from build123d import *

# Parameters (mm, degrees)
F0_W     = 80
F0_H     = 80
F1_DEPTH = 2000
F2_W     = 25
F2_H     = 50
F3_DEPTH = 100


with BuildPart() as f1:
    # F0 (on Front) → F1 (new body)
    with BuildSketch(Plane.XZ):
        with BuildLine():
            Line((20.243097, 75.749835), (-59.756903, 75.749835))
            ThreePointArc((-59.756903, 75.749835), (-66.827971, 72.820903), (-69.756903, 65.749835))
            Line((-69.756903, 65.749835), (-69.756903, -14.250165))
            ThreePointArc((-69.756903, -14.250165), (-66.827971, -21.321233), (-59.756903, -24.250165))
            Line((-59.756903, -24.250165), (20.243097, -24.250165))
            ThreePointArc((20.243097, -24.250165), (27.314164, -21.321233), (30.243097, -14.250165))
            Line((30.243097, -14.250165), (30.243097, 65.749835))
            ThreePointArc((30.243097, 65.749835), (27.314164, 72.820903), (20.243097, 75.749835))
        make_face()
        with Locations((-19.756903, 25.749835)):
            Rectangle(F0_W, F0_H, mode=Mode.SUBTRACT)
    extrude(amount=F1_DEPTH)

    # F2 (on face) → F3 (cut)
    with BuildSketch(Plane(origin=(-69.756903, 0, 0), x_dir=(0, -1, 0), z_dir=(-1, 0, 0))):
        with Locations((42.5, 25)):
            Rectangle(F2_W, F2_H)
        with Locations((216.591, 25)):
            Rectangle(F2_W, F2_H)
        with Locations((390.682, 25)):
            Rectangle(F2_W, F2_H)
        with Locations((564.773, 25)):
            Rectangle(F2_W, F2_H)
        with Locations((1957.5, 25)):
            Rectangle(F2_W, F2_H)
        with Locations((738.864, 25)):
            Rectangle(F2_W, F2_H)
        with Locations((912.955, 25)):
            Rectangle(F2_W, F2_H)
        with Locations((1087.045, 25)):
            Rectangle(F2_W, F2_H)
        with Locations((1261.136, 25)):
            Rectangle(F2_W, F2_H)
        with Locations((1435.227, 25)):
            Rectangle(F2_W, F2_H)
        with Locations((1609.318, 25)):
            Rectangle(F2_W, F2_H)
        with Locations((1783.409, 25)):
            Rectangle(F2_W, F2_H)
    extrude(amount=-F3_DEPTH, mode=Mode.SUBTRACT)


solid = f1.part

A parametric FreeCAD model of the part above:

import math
import FreeCAD as App
import Part
import Sketcher

V = App.Vector
Q = App.Units.Quantity

doc = App.newDocument("Part")
body = doc.addObject("PartDesign::Body", "Body")

sketch1 = body.newObject("Sketcher::SketchObject", "Sketch")
sketch1.AttachmentSupport = (doc.getObject("XZ_Plane"), [""])
sketch1.MapMode = "FlatFace"
sketch1.addGeometry(Part.LineSegment(V(20, 76, 0), V(-60, 76, 0)), False)
sketch1.addGeometry(Part.ArcOfCircle(Part.Circle(V(-60, 66, 0), V(0, 0, 1), 10), math.radians(90), math.radians(180)), False)
sketch1.addGeometry(Part.LineSegment(V(-70, 66, 0), V(-70, -14, 0)), False)
sketch1.addGeometry(Part.ArcOfCircle(Part.Circle(V(-60, -14, 0), V(0, 0, 1), 10), math.radians(180), math.radians(270)), False)
sketch1.addGeometry(Part.LineSegment(V(-60, -24, 0), V(20, -24, 0)), False)
sketch1.addGeometry(Part.ArcOfCircle(Part.Circle(V(20, -14, 0), V(0, 0, 1), 10), math.radians(-90), math.radians(0)), False)
sketch1.addGeometry(Part.LineSegment(V(30, -14, 0), V(30, 66, 0)), False)
sketch1.addGeometry(Part.ArcOfCircle(Part.Circle(V(20, 66, 0), V(0, 0, 1), 10), math.radians(0), math.radians(90)), False)
sketch1.addGeometry(Part.LineSegment(V(20, -14, 0), V(-60, -14, 0)), False)
sketch1.addGeometry(Part.LineSegment(V(-60, -14, 0), V(-60, 66, 0)), False)
sketch1.addGeometry(Part.LineSegment(V(-60, 66, 0), V(20, 66, 0)), False)
sketch1.addGeometry(Part.LineSegment(V(20, 66, 0), V(20, -14, 0)), False)
sketch1.addConstraint(Sketcher.Constraint("Tangent", 0, 2, 1, 1))
sketch1.addConstraint(Sketcher.Constraint("Tangent", 1, 2, 2, 1))
sketch1.addConstraint(Sketcher.Constraint("Tangent", 2, 2, 3, 1))
sketch1.addConstraint(Sketcher.Constraint("Tangent", 3, 2, 4, 1))
sketch1.addConstraint(Sketcher.Constraint("Tangent", 4, 2, 5, 1))
sketch1.addConstraint(Sketcher.Constraint("Tangent", 5, 2, 6, 1))
sketch1.addConstraint(Sketcher.Constraint("Tangent", 6, 2, 7, 1))
sketch1.addConstraint(Sketcher.Constraint("Tangent", 7, 2, 0, 1))
sketch1.addConstraint(Sketcher.Constraint("Coincident", 8, 2, 9, 1))
sketch1.addConstraint(Sketcher.Constraint("Coincident", 9, 2, 10, 1))
sketch1.addConstraint(Sketcher.Constraint("Coincident", 10, 2, 11, 1))
sketch1.addConstraint(Sketcher.Constraint("Coincident", 11, 2, 8, 1))
sketch1.addConstraint(Sketcher.Constraint("Horizontal", 0))
sketch1.addConstraint(Sketcher.Constraint("Vertical", 2))
sketch1.addConstraint(Sketcher.Constraint("Horizontal", 4))
sketch1.addConstraint(Sketcher.Constraint("Vertical", 6))
sketch1.addConstraint(Sketcher.Constraint("Horizontal", 8))
sketch1.addConstraint(Sketcher.Constraint("Vertical", 9))
sketch1.addConstraint(Sketcher.Constraint("Horizontal", 10))
sketch1.addConstraint(Sketcher.Constraint("Vertical", 11))
sketch1.addConstraint(Sketcher.Constraint("Coincident", 8, 2, 3, 3))
sketch1.addConstraint(Sketcher.Constraint("Coincident", 9, 2, 1, 3))
sketch1.addConstraint(Sketcher.Constraint("Coincident", 10, 2, 7, 3))
sketch1.addConstraint(Sketcher.Constraint("Equal", 3, 5))
sketch1.addConstraint(Sketcher.Constraint("Equal", 10, 2))
sketch1.addConstraint(Sketcher.Constraint("Radius", 1, Q("9.999999 mm")))
sketch1.addConstraint(Sketcher.Constraint("DistanceX", 0, 2, 0, 1, Q("80 mm")))
sketch1.addConstraint(Sketcher.Constraint("DistanceX", 1, 3, -1, 1, Q("59.756904 mm")))
sketch1.addConstraint(Sketcher.Constraint("DistanceY", -1, 1, 1, 3, Q("65.749836 mm")))
pad1 = body.newObject("PartDesign::Pad", "Pad")
pad1.Profile = sketch1
pad1.Length = 2000

sketch2 = body.newObject("Sketcher::SketchObject", "Sketch001")
sketch2.AttachmentSupport = (doc.getObject("YZ_Plane"), [""])
sketch2.MapMode = "FlatFace"
sketch2.AttachmentOffset = App.Placement(V(0, 0, -69.756903), App.Rotation())
sketch2.addGeometry(Part.LineSegment(V(-30, 50, 0), V(-30, 0, 0)), False)
sketch2.addGeometry(Part.LineSegment(V(-30, 0, 0), V(-55, 0, 0)), False)
sketch2.addGeometry(Part.LineSegment(V(-55, 0, 0), V(-55, 50, 0)), False)
sketch2.addGeometry(Part.LineSegment(V(-55, 50, 0), V(-30, 50, 0)), False)
sketch2.addGeometry(Part.LineSegment(V(-204, 50, 0), V(-204, 0, 0)), False)
sketch2.addGeometry(Part.LineSegment(V(-204, 0, 0), V(-229, 0, 0)), False)
sketch2.addGeometry(Part.LineSegment(V(-229, 0, 0), V(-229, 50, 0)), False)
sketch2.addGeometry(Part.LineSegment(V(-229, 50, 0), V(-204, 50, 0)), False)
sketch2.addGeometry(Part.LineSegment(V(-378, 50, 0), V(-378, 0, 0)), False)
sketch2.addGeometry(Part.LineSegment(V(-378, 0, 0), V(-403, 0, 0)), False)
sketch2.addGeometry(Part.LineSegment(V(-403, 0, 0), V(-403, 50, 0)), False)
sketch2.addGeometry(Part.LineSegment(V(-403, 50, 0), V(-378, 50, 0)), False)
sketch2.addGeometry(Part.LineSegment(V(-552, 50, 0), V(-552, 0, 0)), False)
sketch2.addGeometry(Part.LineSegment(V(-552, 0, 0), V(-577, 0, 0)), False)
sketch2.addGeometry(Part.LineSegment(V(-577, 0, 0), V(-577, 50, 0)), False)
sketch2.addGeometry(Part.LineSegment(V(-577, 50, 0), V(-552, 50, 0)), False)
sketch2.addGeometry(Part.LineSegment(V(-1945, 50, 0), V(-1945, 0, 0)), False)
sketch2.addGeometry(Part.LineSegment(V(-1945, 0, 0), V(-1970, 0, 0)), False)
sketch2.addGeometry(Part.LineSegment(V(-1970, 0, 0), V(-1970, 50, 0)), False)
sketch2.addGeometry(Part.LineSegment(V(-1970, 50, 0), V(-1945, 50, 0)), False)
sketch2.addGeometry(Part.LineSegment(V(-726, 50, 0), V(-726, 0, 0)), False)
sketch2.addGeometry(Part.LineSegment(V(-726, 0, 0), V(-751, 0, 0)), False)
sketch2.addGeometry(Part.LineSegment(V(-751, 0, 0), V(-751, 50, 0)), False)
sketch2.addGeometry(Part.LineSegment(V(-751, 50, 0), V(-726, 50, 0)), False)
sketch2.addGeometry(Part.LineSegment(V(-900, 50, 0), V(-900, 0, 0)), False)
sketch2.addGeometry(Part.LineSegment(V(-900, 0, 0), V(-925, 0, 0)), False)
sketch2.addGeometry(Part.LineSegment(V(-925, 0, 0), V(-925, 50, 0)), False)
sketch2.addGeometry(Part.LineSegment(V(-925, 50, 0), V(-900, 50, 0)), False)
sketch2.addGeometry(Part.LineSegment(V(-1075, 50, 0), V(-1075, 0, 0)), False)
sketch2.addGeometry(Part.LineSegment(V(-1075, 0, 0), V(-1100, 0, 0)), False)
sketch2.addGeometry(Part.LineSegment(V(-1100, 0, 0), V(-1100, 50, 0)), False)
sketch2.addGeometry(Part.LineSegment(V(-1100, 50, 0), V(-1075, 50, 0)), False)
sketch2.addGeometry(Part.LineSegment(V(-1249, 50, 0), V(-1249, 0, 0)), False)
sketch2.addGeometry(Part.LineSegment(V(-1249, 0, 0), V(-1274, 0, 0)), False)
sketch2.addGeometry(Part.LineSegment(V(-1274, 0, 0), V(-1274, 50, 0)), False)
sketch2.addGeometry(Part.LineSegment(V(-1274, 50, 0), V(-1249, 50, 0)), False)
sketch2.addGeometry(Part.LineSegment(V(-1423, 50, 0), V(-1423, 0, 0)), False)
sketch2.addGeometry(Part.LineSegment(V(-1423, 0, 0), V(-1448, 0, 0)), False)
sketch2.addGeometry(Part.LineSegment(V(-1448, 0, 0), V(-1448, 50, 0)), False)
sketch2.addGeometry(Part.LineSegment(V(-1448, 50, 0), V(-1423, 50, 0)), False)
sketch2.addGeometry(Part.LineSegment(V(-1597, 50, 0), V(-1597, 0, 0)), False)
sketch2.addGeometry(Part.LineSegment(V(-1597, 0, 0), V(-1622, 0, 0)), False)
sketch2.addGeometry(Part.LineSegment(V(-1622, 0, 0), V(-1622, 50, 0)), False)
sketch2.addGeometry(Part.LineSegment(V(-1622, 50, 0), V(-1597, 50, 0)), False)
sketch2.addGeometry(Part.LineSegment(V(-1771, 50, 0), V(-1771, 0, 0)), False)
sketch2.addGeometry(Part.LineSegment(V(-1771, 0, 0), V(-1796, 0, 0)), False)
sketch2.addGeometry(Part.LineSegment(V(-1796, 0, 0), V(-1796, 50, 0)), False)
sketch2.addGeometry(Part.LineSegment(V(-1796, 50, 0), V(-1771, 50, 0)), False)
sketch2.addConstraint(Sketcher.Constraint("Coincident", 0, 2, 1, 1))
sketch2.addConstraint(Sketcher.Constraint("Coincident", 1, 2, 2, 1))
sketch2.addConstraint(Sketcher.Constraint("Coincident", 2, 2, 3, 1))
sketch2.addConstraint(Sketcher.Constraint("Coincident", 3, 2, 0, 1))
sketch2.addConstraint(Sketcher.Constraint("Coincident", 4, 2, 5, 1))
sketch2.addConstraint(Sketcher.Constraint("Coincident", 5, 2, 6, 1))
sketch2.addConstraint(Sketcher.Constraint("Coincident", 6, 2, 7, 1))
sketch2.addConstraint(Sketcher.Constraint("Coincident", 7, 2, 4, 1))
sketch2.addConstraint(Sketcher.Constraint("Coincident", 8, 2, 9, 1))
sketch2.addConstraint(Sketcher.Constraint("Coincident", 9, 2, 10, 1))
sketch2.addConstraint(Sketcher.Constraint("Coincident", 10, 2, 11, 1))
sketch2.addConstraint(Sketcher.Constraint("Coincident", 11, 2, 8, 1))
sketch2.addConstraint(Sketcher.Constraint("Coincident", 12, 2, 13, 1))
sketch2.addConstraint(Sketcher.Constraint("Coincident", 13, 2, 14, 1))
sketch2.addConstraint(Sketcher.Constraint("Coincident", 14, 2, 15, 1))
sketch2.addConstraint(Sketcher.Constraint("Coincident", 15, 2, 12, 1))
sketch2.addConstraint(Sketcher.Constraint("Coincident", 16, 2, 17, 1))
sketch2.addConstraint(Sketcher.Constraint("Coincident", 17, 2, 18, 1))
sketch2.addConstraint(Sketcher.Constraint("Coincident", 18, 2, 19, 1))
sketch2.addConstraint(Sketcher.Constraint("Coincident", 19, 2, 16, 1))
sketch2.addConstraint(Sketcher.Constraint("Coincident", 20, 2, 21, 1))
sketch2.addConstraint(Sketcher.Constraint("Coincident", 21, 2, 22, 1))
sketch2.addConstraint(Sketcher.Constraint("Coincident", 22, 2, 23, 1))
sketch2.addConstraint(Sketcher.Constraint("Coincident", 23, 2, 20, 1))
sketch2.addConstraint(Sketcher.Constraint("Coincident", 24, 2, 25, 1))
sketch2.addConstraint(Sketcher.Constraint("Coincident", 25, 2, 26, 1))
sketch2.addConstraint(Sketcher.Constraint("Coincident", 26, 2, 27, 1))
sketch2.addConstraint(Sketcher.Constraint("Coincident", 27, 2, 24, 1))
sketch2.addConstraint(Sketcher.Constraint("Coincident", 28, 2, 29, 1))
sketch2.addConstraint(Sketcher.Constraint("Coincident", 29, 2, 30, 1))
sketch2.addConstraint(Sketcher.Constraint("Coincident", 30, 2, 31, 1))
sketch2.addConstraint(Sketcher.Constraint("Coincident", 31, 2, 28, 1))
sketch2.addConstraint(Sketcher.Constraint("Coincident", 32, 2, 33, 1))
sketch2.addConstraint(Sketcher.Constraint("Coincident", 33, 2, 34, 1))
sketch2.addConstraint(Sketcher.Constraint("Coincident", 34, 2, 35, 1))
sketch2.addConstraint(Sketcher.Constraint("Coincident", 35, 2, 32, 1))
sketch2.addConstraint(Sketcher.Constraint("Coincident", 36, 2, 37, 1))
sketch2.addConstraint(Sketcher.Constraint("Coincident", 37, 2, 38, 1))
sketch2.addConstraint(Sketcher.Constraint("Coincident", 38, 2, 39, 1))
sketch2.addConstraint(Sketcher.Constraint("Coincident", 39, 2, 36, 1))
sketch2.addConstraint(Sketcher.Constraint("Coincident", 40, 2, 41, 1))
sketch2.addConstraint(Sketcher.Constraint("Coincident", 41, 2, 42, 1))
sketch2.addConstraint(Sketcher.Constraint("Coincident", 42, 2, 43, 1))
sketch2.addConstraint(Sketcher.Constraint("Coincident", 43, 2, 40, 1))
sketch2.addConstraint(Sketcher.Constraint("Coincident", 44, 2, 45, 1))
sketch2.addConstraint(Sketcher.Constraint("Coincident", 45, 2, 46, 1))
sketch2.addConstraint(Sketcher.Constraint("Coincident", 46, 2, 47, 1))
sketch2.addConstraint(Sketcher.Constraint("Coincident", 47, 2, 44, 1))
sketch2.addConstraint(Sketcher.Constraint("Vertical", 0))
sketch2.addConstraint(Sketcher.Constraint("Horizontal", 1))
sketch2.addConstraint(Sketcher.Constraint("Vertical", 2))
sketch2.addConstraint(Sketcher.Constraint("Horizontal", 3))
sketch2.addConstraint(Sketcher.Constraint("Vertical", 4))
sketch2.addConstraint(Sketcher.Constraint("Horizontal", 5))
sketch2.addConstraint(Sketcher.Constraint("Vertical", 6))
sketch2.addConstraint(Sketcher.Constraint("Horizontal", 7))
sketch2.addConstraint(Sketcher.Constraint("Vertical", 8))
sketch2.addConstraint(Sketcher.Constraint("Horizontal", 9))
sketch2.addConstraint(Sketcher.Constraint("Vertical", 10))
sketch2.addConstraint(Sketcher.Constraint("Horizontal", 11))
sketch2.addConstraint(Sketcher.Constraint("Vertical", 12))
sketch2.addConstraint(Sketcher.Constraint("Horizontal", 13))
sketch2.addConstraint(Sketcher.Constraint("Vertical", 14))
sketch2.addConstraint(Sketcher.Constraint("Horizontal", 15))
sketch2.addConstraint(Sketcher.Constraint("Vertical", 16))
sketch2.addConstraint(Sketcher.Constraint("Horizontal", 17))
sketch2.addConstraint(Sketcher.Constraint("Vertical", 18))
sketch2.addConstraint(Sketcher.Constraint("Horizontal", 19))
sketch2.addConstraint(Sketcher.Constraint("Vertical", 20))
sketch2.addConstraint(Sketcher.Constraint("Horizontal", 21))
sketch2.addConstraint(Sketcher.Constraint("Vertical", 22))
sketch2.addConstraint(Sketcher.Constraint("Horizontal", 23))
sketch2.addConstraint(Sketcher.Constraint("Vertical", 24))
sketch2.addConstraint(Sketcher.Constraint("Horizontal", 25))
sketch2.addConstraint(Sketcher.Constraint("Vertical", 26))
sketch2.addConstraint(Sketcher.Constraint("Horizontal", 27))
sketch2.addConstraint(Sketcher.Constraint("Vertical", 28))
sketch2.addConstraint(Sketcher.Constraint("Horizontal", 29))
sketch2.addConstraint(Sketcher.Constraint("Vertical", 30))
sketch2.addConstraint(Sketcher.Constraint("Horizontal", 31))
sketch2.addConstraint(Sketcher.Constraint("Vertical", 32))
sketch2.addConstraint(Sketcher.Constraint("Horizontal", 33))
sketch2.addConstraint(Sketcher.Constraint("Vertical", 34))
sketch2.addConstraint(Sketcher.Constraint("Horizontal", 35))
sketch2.addConstraint(Sketcher.Constraint("Vertical", 36))
sketch2.addConstraint(Sketcher.Constraint("Horizontal", 37))
sketch2.addConstraint(Sketcher.Constraint("Vertical", 38))
sketch2.addConstraint(Sketcher.Constraint("Horizontal", 39))
sketch2.addConstraint(Sketcher.Constraint("Vertical", 40))
sketch2.addConstraint(Sketcher.Constraint("Horizontal", 41))
sketch2.addConstraint(Sketcher.Constraint("Vertical", 42))
sketch2.addConstraint(Sketcher.Constraint("Horizontal", 43))
sketch2.addConstraint(Sketcher.Constraint("Vertical", 44))
sketch2.addConstraint(Sketcher.Constraint("Horizontal", 45))
sketch2.addConstraint(Sketcher.Constraint("Vertical", 46))
sketch2.addConstraint(Sketcher.Constraint("Horizontal", 47))
sketch2.addConstraint(Sketcher.Constraint("PointOnObject", 0, 2, -1))
sketch2.addConstraint(Sketcher.Constraint("PointOnObject", 4, 2, -1))
sketch2.addConstraint(Sketcher.Constraint("PointOnObject", 8, 2, -1))
sketch2.addConstraint(Sketcher.Constraint("PointOnObject", 12, 2, -1))
sketch2.addConstraint(Sketcher.Constraint("PointOnObject", 16, 2, -1))
sketch2.addConstraint(Sketcher.Constraint("PointOnObject", 20, 2, -1))
sketch2.addConstraint(Sketcher.Constraint("PointOnObject", 24, 2, -1))
sketch2.addConstraint(Sketcher.Constraint("PointOnObject", 28, 2, -1))
sketch2.addConstraint(Sketcher.Constraint("PointOnObject", 32, 2, -1))
sketch2.addConstraint(Sketcher.Constraint("PointOnObject", 36, 2, -1))
sketch2.addConstraint(Sketcher.Constraint("PointOnObject", 40, 2, -1))
sketch2.addConstraint(Sketcher.Constraint("PointOnObject", 44, 2, -1))
sketch2.addConstraint(Sketcher.Constraint("Horizontal", 3, 2, 6, 2))
sketch2.addConstraint(Sketcher.Constraint("Horizontal", 7, 2, 10, 2))
sketch2.addConstraint(Sketcher.Constraint("Horizontal", 11, 2, 14, 2))
sketch2.addConstraint(Sketcher.Constraint("Horizontal", 15, 2, 18, 2))
sketch2.addConstraint(Sketcher.Constraint("Horizontal", 19, 2, 22, 2))
sketch2.addConstraint(Sketcher.Constraint("Horizontal", 23, 2, 26, 2))
sketch2.addConstraint(Sketcher.Constraint("Horizontal", 27, 2, 30, 2))
sketch2.addConstraint(Sketcher.Constraint("Horizontal", 31, 2, 34, 2))
sketch2.addConstraint(Sketcher.Constraint("Horizontal", 35, 2, 38, 2))
sketch2.addConstraint(Sketcher.Constraint("Horizontal", 39, 2, 42, 2))
sketch2.addConstraint(Sketcher.Constraint("Horizontal", 43, 2, 46, 2))
sketch2.addConstraint(Sketcher.Constraint("Equal", 3, 5))
sketch2.addConstraint(Sketcher.Constraint("Equal", 7, 9))
sketch2.addConstraint(Sketcher.Constraint("Equal", 11, 13))
sketch2.addConstraint(Sketcher.Constraint("Equal", 15, 17))
sketch2.addConstraint(Sketcher.Constraint("Equal", 19, 21))
sketch2.addConstraint(Sketcher.Constraint("Equal", 23, 25))
sketch2.addConstraint(Sketcher.Constraint("Equal", 27, 29))
sketch2.addConstraint(Sketcher.Constraint("Equal", 31, 33))
sketch2.addConstraint(Sketcher.Constraint("Equal", 35, 37))
sketch2.addConstraint(Sketcher.Constraint("Equal", 39, 41))
sketch2.addConstraint(Sketcher.Constraint("Equal", 43, 45))
sketch2.addConstraint(Sketcher.Constraint("DistanceX", 1, 2, 1, 1, Q("25 mm")))
sketch2.addConstraint(Sketcher.Constraint("DistanceY", 0, 2, 0, 1, Q("50 mm")))
sketch2.addConstraint(Sketcher.Constraint("DistanceX", 0, 2, -1, 1, Q("30 mm")))
sketch2.addConstraint(Sketcher.Constraint("DistanceX", 16, 2, -1, 1, Q("1945 mm")))
sketch2.addConstraint(Sketcher.Constraint("DistanceX", 28, 2, 25, 2, Q("149.09 mm")))
sketch2.addConstraint(Sketcher.Constraint("DistanceX", 4, 2, -1, 1, Q("204.091 mm")))
sketch2.addConstraint(Sketcher.Constraint("DistanceX", 8, 2, -1, 1, Q("378.182 mm")))
sketch2.addConstraint(Sketcher.Constraint("DistanceX", 12, 2, -1, 1, Q("552.273 mm")))
sketch2.addConstraint(Sketcher.Constraint("DistanceX", 20, 2, -1, 1, Q("726.364 mm")))
sketch2.addConstraint(Sketcher.Constraint("DistanceX", 24, 2, -1, 1, Q("900.455 mm")))
sketch2.addConstraint(Sketcher.Constraint("DistanceX", 32, 2, -1, 1, Q("1248.636 mm")))
sketch2.addConstraint(Sketcher.Constraint("DistanceX", 36, 2, -1, 1, Q("1422.727 mm")))
sketch2.addConstraint(Sketcher.Constraint("DistanceX", 40, 2, -1, 1, Q("1596.818 mm")))
sketch2.addConstraint(Sketcher.Constraint("DistanceX", 44, 2, -1, 1, Q("1770.909 mm")))
pocket1 = body.newObject("PartDesign::Pocket", "Pocket")
pocket1.Profile = sketch2
pocket1.Length = 100
pocket1.Reversed = True

doc.recompute()
